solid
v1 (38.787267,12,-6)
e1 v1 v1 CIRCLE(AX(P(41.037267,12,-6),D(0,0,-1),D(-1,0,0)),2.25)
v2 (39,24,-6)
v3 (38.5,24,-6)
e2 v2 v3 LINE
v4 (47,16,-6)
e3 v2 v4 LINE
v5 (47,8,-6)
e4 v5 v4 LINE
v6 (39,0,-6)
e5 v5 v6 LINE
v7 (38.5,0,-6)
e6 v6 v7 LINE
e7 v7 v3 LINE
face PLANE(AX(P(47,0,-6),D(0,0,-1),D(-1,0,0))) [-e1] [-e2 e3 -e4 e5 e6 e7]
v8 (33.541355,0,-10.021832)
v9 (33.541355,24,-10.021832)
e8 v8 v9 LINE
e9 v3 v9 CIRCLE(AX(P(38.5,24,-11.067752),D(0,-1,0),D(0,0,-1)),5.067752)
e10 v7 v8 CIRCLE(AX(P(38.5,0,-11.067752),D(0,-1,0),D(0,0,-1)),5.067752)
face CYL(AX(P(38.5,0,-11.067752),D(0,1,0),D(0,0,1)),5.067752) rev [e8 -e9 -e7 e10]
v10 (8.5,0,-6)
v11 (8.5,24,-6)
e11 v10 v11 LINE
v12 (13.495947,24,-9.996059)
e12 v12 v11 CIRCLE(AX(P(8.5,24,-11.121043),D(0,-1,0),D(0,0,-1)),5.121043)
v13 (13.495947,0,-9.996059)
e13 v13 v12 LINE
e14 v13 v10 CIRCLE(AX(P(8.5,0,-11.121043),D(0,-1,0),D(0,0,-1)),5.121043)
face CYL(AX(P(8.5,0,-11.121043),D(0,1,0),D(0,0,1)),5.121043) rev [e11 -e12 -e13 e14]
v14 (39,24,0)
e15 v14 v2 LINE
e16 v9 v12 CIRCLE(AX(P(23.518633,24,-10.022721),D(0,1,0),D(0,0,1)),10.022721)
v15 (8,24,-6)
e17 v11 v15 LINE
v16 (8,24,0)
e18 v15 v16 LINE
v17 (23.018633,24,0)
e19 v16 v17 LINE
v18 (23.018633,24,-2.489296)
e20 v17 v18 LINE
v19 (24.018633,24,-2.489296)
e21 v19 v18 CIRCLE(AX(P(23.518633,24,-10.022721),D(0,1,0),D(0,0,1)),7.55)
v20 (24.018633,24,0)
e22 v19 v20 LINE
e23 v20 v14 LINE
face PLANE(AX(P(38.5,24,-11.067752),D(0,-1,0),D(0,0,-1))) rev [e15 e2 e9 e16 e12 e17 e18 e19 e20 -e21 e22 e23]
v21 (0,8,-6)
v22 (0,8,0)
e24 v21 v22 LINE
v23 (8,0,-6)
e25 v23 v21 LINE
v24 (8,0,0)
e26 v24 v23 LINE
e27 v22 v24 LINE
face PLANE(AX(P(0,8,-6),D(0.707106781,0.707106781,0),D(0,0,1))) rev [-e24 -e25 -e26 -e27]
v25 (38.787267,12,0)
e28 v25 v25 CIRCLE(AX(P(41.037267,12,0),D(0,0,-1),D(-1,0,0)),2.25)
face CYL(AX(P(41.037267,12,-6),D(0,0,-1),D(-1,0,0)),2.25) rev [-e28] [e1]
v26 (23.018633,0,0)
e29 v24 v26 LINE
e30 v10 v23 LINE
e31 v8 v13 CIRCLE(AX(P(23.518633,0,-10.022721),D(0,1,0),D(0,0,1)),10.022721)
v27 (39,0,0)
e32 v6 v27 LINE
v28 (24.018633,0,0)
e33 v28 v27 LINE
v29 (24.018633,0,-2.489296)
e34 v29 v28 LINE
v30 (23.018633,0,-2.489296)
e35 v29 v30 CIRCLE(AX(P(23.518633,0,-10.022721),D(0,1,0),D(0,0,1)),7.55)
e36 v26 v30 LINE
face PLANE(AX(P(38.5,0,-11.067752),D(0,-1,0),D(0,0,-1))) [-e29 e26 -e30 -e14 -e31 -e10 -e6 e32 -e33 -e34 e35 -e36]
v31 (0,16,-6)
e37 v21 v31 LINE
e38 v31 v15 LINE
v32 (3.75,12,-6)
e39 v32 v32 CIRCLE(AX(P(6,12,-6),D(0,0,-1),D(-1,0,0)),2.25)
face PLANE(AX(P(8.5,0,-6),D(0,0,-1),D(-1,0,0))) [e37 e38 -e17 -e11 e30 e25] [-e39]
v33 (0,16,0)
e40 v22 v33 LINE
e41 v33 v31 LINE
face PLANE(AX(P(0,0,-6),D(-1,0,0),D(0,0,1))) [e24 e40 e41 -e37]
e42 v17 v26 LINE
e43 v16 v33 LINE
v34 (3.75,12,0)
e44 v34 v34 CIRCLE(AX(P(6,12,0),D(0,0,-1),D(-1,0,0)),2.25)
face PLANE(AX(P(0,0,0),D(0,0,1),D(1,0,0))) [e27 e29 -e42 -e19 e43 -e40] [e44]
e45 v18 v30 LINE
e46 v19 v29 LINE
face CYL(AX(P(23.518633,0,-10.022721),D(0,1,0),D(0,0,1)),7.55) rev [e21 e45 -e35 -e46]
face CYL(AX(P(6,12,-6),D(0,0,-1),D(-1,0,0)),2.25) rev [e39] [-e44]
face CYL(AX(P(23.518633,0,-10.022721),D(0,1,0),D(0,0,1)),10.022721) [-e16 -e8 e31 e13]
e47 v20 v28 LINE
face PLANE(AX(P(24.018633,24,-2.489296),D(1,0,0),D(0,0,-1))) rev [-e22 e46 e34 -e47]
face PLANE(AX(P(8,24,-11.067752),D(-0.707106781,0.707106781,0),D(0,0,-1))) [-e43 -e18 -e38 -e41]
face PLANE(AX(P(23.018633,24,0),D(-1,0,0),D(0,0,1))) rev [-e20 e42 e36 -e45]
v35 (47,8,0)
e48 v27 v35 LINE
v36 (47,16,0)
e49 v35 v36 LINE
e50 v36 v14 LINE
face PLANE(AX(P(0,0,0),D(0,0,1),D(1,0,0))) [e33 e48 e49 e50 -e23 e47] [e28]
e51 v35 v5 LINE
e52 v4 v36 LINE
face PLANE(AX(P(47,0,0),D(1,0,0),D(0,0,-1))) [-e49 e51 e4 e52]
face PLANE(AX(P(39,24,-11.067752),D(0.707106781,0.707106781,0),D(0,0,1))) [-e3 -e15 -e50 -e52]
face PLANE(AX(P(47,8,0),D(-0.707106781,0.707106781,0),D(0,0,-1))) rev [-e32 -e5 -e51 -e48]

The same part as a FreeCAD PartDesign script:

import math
import FreeCAD as App
import Part
import Sketcher
Q = App.Units.Quantity


def edges_at(feature, points):
    """Names of the edges that pass closest to the given points."""
    edges = feature.Shape.Edges
    near = lambda p: min(range(len(edges)), key=lambda i: edges[i].distToShape(Part.Vertex(*p))[0])
    return sorted({f"Edge{near(p) + 1}" for p in points})

doc = App.newDocument("Part")
body = doc.addObject("PartDesign::Body", "Body")

sketch1 = doc.addObject("Sketcher::SketchObject", "Sketch")
body.addObject(sketch1)
sketch1.AttachmentSupport = (doc.XZ_Plane, [""])
sketch1.MapMode = "FlatFace"
sketch1.AttachmentOffset = App.Placement(App.Vector(0, 0, -24), App.Rotation())
sketch1.addGeometry([
    Part.LineSegment(App.Vector(0, 0, 0), App.Vector(47, 0, 0)),
    Part.LineSegment(App.Vector(47, 0, 0), App.Vector(47, -6, 0)),
    Part.LineSegment(App.Vector(47, -6, 0), App.Vector(38, -6, 0)),
    Part.ArcOfCircle(Part.Circle(App.Vector(38, -11, 0), App.Vector(0, 0, 1), 5), math.radians(90), math.radians(168)),
    Part.ArcOfCircle(Part.Circle(App.Vector(24, -10, 0), App.Vector(0, 0, 1), 10), math.radians(180), math.radians(360)),
    Part.ArcOfCircle(Part.Circle(App.Vector(9, -11, 0), App.Vector(0, 0, 1), 5), math.radians(13), math.radians(90)),
    Part.LineSegment(App.Vector(8, -6, 0), App.Vector(0, -6, 0)),
    Part.LineSegment(App.Vector(0, -6, 0), App.Vector(0, 0, 0)),
], False)
sketch1.addConstraint([
    Sketcher.Constraint("Coincident", 0, 2, 1, 1),
    Sketcher.Constraint("Coincident", 1, 2, 2, 1),
    Sketcher.Constraint("Tangent", 2, 2, 3, 1),
    Sketcher.Constraint("Coincident", 3, 2, 4, 2),
    Sketcher.Constraint("Coincident", 4, 1, 5, 1),
    Sketcher.Constraint("Tangent", 5, 2, 6, 1),
    Sketcher.Constraint("Coincident", 6, 2, 7, 1),
    Sketcher.Constraint("Coincident", 7, 2, 0, 1),
    Sketcher.Constraint("Horizontal", 0),
    Sketcher.Constraint("Vertical", 1),
    Sketcher.Constraint("Horizontal", 2),
    Sketcher.Constraint("Horizontal", 6),
    Sketcher.Constraint("Vertical", 7),
    Sketcher.Constraint("Coincident", 7, 2, -1, 1),
    Sketcher.Constraint("Horizontal", 2, 2, 5, 2),
    Sketcher.Constraint("Equal", 2, 6),
    Sketcher.Constraint("DistanceX", 0, 1, 0, 2, Q("47 mm")),
    Sketcher.Constraint("DistanceY", 1, 2, 1, 1, Q("6 mm")),
    Sketcher.Constraint("DistanceX", 2, 2, 2, 1, Q("8.5 mm")),
    Sketcher.Constraint("Radius", 4, Q("10.022721 mm")),
    Sketcher.Constraint("Radius", 3, Q("5.067752 mm")),
    Sketcher.Constraint("Radius", 5, Q("5.121043 mm")),
    Sketcher.Constraint("DistanceY", 4, 3, -1, 1, Q("10.022721 mm")),
    Sketcher.Constraint("DistanceY", 3, 2, -1, 1, Q("10.021832 mm")),
])
pad1 = doc.addObject("PartDesign::Pad", "Pad")
body.addObject(pad1)
pad1.Profile = sketch1
pad1.Length = 24

sketch2 = doc.addObject("Sketcher::SketchObject", "Sketch001")
body.addObject(sketch2)
sketch2.AttachmentSupport = (doc.XZ_Plane, [""])
sketch2.MapMode = "FlatFace"
sketch2.addGeometry([
    Part.LineSegment(App.Vector(24, 0, 0), App.Vector(23, 0, 0)),
    Part.LineSegment(App.Vector(23, 0, 0), App.Vector(23, -2.5, 0)),
    Part.ArcOfCircle(Part.Circle(App.Vector(23.5, -10, 0), App.Vector(0, 0, 1), 7.5), math.radians(86.2), math.radians(93.8)),
    Part.LineSegment(App.Vector(24, -2.5, 0), App.Vector(24, 0, 0)),
], False)
sketch2.addConstraint([
    Sketcher.Constraint("Coincident", 0, 2, 1, 1),
    Sketcher.Constraint("Coincident", 1, 2, 2, 2),
    Sketcher.Constraint("Coincident", 2, 1, 3, 1),
    Sketcher.Constraint("Coincident", 3, 2, 0, 1),
    Sketcher.Constraint("Horizontal", 0),
    Sketcher.Constraint("Vertical", 1),
    Sketcher.Constraint("Vertical", 3),
    Sketcher.Constraint("PointOnObject", 0, 2, -1),
    Sketcher.Constraint("Horizontal", 1, 2, 2, 1),
    Sketcher.Constraint("DistanceX", 0, 2, 0, 1, Q("1 mm")),
    Sketcher.Constraint("Radius", 2, Q("7.55 mm")),
    Sketcher.Constraint("DistanceY", 1, 2, 1, 1, Q("2.489296 mm")),
    Sketcher.Constraint("DistanceX", -1, 1, 2, 3, Q("23.518633 mm")),
])
pocket1 = doc.addObject("PartDesign::Pocket", "Pocket")
body.addObject(pocket1)
pocket1.Profile = sketch2
pocket1.Type = "ThroughAll"

sketch3 = doc.addObject("Sketcher::SketchObject", "Sketch002")
body.addObject(sketch3)
sketch3.AttachmentSupport = (doc.XY_Plane, [""])
sketch3.MapMode = "FlatFace"
sketch3.AttachmentOffset = App.Placement(App.Vector(0, 0, -10.022721), App.Rotation())
sketch3.addGeometry([
    Part.LineSegment(App.Vector(31, 24, 0), App.Vector(31, 0, 0)),
    Part.LineSegment(App.Vector(31, 0, 0), App.Vector(24, 0, 0)),
    Part.LineSegment(App.Vector(24, 0, 0), App.Vector(24, 24, 0)),
    Part.LineSegment(App.Vector(24, 24, 0), App.Vector(31, 24, 0)),
], False)
sketch3.addGeometry(Part.LineSegment(App.Vector(24, 0, 0), App.Vector(24, 24, 0)), True)
sketch3.addConstraint([
    Sketcher.Constraint("Coincident", 0, 2, 1, 1),
    Sketcher.Constraint("Coincident", 1, 2, 2, 1),
    Sketcher.Constraint("Coincident", 2, 2, 3, 1),
    Sketcher.Constraint("Coincident", 3, 2, 0, 1),
    Sketcher.Constraint("Vertical", 0),
    Sketcher.Constraint("Horizontal", 1),
    Sketcher.Constraint("Vertical", 2),
    Sketcher.Constraint("Horizontal", 3),
    Sketcher.Constraint("Vertical", 4),
    Sketcher.Constraint("Coincident", 4, 1, 1, 2),
    Sketcher.Constraint("PointOnObject", 0, 2, -1),
    Sketcher.Constraint("Horizontal", 3, 2, 4, 2),
    Sketcher.Constraint("DistanceY", 0, 2, 0, 1, Q("24 mm")),
    Sketcher.Constraint("DistanceX", 1, 2, 1, 1, Q("7.55 mm")),
    Sketcher.Constraint("DistanceX", -1, 1, 0, 2, Q("31.068633 mm")),
])
groove = doc.addObject("PartDesign::Groove", "Groove")
body.addObject(groove)
groove.Profile = sketch3
groove.ReferenceAxis = (sketch3, ["Axis0"])
groove.Angle = 360

sketch4 = doc.addObject("Sketcher::SketchObject", "Sketch003")
body.addObject(sketch4)
sketch4.AttachmentSupport = (doc.XY_Plane, [""])
sketch4.MapMode = "FlatFace"
sketch4.AttachmentOffset = App.Placement(App.Vector(0, 0, -6), App.Rotation())
sketch4.addGeometry([
    Part.Circle(App.Vector(41, 12, 0), App.Vector(0, 0, 1), 2.2),
    Part.Circle(App.Vector(6, 12, 0), App.Vector(0, 0, 1), 2.2),
], False)
sketch4.addConstraint([
    Sketcher.Constraint("Equal", 0, 1),
    Sketcher.Constraint("Horizontal", 0, 3, 1, 3),
    Sketcher.Constraint("Diameter", 0, Q("4.5 mm")),
    Sketcher.Constraint("DistanceY", -1, 1, 0, 3, Q("12 mm")),
    Sketcher.Constraint("DistanceX", -1, 1, 1, 3, Q("6 mm")),
    Sketcher.Constraint("DistanceX", -1, 1, 0, 3, Q("41.037267 mm")),
])
doc.recompute()
hole = doc.addObject("PartDesign::Hole", "Hole")
body.addObject(hole)
hole.Profile = sketch4
hole.ThreadType = "None"
hole.Diameter = 4.5
hole.DepthType = "Dimension"
hole.Depth = 6
hole.DrillPoint = "Flat"
hole.Reversed = True
doc.recompute()

chamfer = doc.addObject("PartDesign::Chamfer", "Chamfer")
body.addObject(chamfer)
chamfer.Base = (hole, edges_at(hole, [
    (47, 0, -3),
    (0, 24, -3),
    (0, 0, -3),
    (47, 24, -3),
]))
chamfer.Size = 8

doc.recompute()
